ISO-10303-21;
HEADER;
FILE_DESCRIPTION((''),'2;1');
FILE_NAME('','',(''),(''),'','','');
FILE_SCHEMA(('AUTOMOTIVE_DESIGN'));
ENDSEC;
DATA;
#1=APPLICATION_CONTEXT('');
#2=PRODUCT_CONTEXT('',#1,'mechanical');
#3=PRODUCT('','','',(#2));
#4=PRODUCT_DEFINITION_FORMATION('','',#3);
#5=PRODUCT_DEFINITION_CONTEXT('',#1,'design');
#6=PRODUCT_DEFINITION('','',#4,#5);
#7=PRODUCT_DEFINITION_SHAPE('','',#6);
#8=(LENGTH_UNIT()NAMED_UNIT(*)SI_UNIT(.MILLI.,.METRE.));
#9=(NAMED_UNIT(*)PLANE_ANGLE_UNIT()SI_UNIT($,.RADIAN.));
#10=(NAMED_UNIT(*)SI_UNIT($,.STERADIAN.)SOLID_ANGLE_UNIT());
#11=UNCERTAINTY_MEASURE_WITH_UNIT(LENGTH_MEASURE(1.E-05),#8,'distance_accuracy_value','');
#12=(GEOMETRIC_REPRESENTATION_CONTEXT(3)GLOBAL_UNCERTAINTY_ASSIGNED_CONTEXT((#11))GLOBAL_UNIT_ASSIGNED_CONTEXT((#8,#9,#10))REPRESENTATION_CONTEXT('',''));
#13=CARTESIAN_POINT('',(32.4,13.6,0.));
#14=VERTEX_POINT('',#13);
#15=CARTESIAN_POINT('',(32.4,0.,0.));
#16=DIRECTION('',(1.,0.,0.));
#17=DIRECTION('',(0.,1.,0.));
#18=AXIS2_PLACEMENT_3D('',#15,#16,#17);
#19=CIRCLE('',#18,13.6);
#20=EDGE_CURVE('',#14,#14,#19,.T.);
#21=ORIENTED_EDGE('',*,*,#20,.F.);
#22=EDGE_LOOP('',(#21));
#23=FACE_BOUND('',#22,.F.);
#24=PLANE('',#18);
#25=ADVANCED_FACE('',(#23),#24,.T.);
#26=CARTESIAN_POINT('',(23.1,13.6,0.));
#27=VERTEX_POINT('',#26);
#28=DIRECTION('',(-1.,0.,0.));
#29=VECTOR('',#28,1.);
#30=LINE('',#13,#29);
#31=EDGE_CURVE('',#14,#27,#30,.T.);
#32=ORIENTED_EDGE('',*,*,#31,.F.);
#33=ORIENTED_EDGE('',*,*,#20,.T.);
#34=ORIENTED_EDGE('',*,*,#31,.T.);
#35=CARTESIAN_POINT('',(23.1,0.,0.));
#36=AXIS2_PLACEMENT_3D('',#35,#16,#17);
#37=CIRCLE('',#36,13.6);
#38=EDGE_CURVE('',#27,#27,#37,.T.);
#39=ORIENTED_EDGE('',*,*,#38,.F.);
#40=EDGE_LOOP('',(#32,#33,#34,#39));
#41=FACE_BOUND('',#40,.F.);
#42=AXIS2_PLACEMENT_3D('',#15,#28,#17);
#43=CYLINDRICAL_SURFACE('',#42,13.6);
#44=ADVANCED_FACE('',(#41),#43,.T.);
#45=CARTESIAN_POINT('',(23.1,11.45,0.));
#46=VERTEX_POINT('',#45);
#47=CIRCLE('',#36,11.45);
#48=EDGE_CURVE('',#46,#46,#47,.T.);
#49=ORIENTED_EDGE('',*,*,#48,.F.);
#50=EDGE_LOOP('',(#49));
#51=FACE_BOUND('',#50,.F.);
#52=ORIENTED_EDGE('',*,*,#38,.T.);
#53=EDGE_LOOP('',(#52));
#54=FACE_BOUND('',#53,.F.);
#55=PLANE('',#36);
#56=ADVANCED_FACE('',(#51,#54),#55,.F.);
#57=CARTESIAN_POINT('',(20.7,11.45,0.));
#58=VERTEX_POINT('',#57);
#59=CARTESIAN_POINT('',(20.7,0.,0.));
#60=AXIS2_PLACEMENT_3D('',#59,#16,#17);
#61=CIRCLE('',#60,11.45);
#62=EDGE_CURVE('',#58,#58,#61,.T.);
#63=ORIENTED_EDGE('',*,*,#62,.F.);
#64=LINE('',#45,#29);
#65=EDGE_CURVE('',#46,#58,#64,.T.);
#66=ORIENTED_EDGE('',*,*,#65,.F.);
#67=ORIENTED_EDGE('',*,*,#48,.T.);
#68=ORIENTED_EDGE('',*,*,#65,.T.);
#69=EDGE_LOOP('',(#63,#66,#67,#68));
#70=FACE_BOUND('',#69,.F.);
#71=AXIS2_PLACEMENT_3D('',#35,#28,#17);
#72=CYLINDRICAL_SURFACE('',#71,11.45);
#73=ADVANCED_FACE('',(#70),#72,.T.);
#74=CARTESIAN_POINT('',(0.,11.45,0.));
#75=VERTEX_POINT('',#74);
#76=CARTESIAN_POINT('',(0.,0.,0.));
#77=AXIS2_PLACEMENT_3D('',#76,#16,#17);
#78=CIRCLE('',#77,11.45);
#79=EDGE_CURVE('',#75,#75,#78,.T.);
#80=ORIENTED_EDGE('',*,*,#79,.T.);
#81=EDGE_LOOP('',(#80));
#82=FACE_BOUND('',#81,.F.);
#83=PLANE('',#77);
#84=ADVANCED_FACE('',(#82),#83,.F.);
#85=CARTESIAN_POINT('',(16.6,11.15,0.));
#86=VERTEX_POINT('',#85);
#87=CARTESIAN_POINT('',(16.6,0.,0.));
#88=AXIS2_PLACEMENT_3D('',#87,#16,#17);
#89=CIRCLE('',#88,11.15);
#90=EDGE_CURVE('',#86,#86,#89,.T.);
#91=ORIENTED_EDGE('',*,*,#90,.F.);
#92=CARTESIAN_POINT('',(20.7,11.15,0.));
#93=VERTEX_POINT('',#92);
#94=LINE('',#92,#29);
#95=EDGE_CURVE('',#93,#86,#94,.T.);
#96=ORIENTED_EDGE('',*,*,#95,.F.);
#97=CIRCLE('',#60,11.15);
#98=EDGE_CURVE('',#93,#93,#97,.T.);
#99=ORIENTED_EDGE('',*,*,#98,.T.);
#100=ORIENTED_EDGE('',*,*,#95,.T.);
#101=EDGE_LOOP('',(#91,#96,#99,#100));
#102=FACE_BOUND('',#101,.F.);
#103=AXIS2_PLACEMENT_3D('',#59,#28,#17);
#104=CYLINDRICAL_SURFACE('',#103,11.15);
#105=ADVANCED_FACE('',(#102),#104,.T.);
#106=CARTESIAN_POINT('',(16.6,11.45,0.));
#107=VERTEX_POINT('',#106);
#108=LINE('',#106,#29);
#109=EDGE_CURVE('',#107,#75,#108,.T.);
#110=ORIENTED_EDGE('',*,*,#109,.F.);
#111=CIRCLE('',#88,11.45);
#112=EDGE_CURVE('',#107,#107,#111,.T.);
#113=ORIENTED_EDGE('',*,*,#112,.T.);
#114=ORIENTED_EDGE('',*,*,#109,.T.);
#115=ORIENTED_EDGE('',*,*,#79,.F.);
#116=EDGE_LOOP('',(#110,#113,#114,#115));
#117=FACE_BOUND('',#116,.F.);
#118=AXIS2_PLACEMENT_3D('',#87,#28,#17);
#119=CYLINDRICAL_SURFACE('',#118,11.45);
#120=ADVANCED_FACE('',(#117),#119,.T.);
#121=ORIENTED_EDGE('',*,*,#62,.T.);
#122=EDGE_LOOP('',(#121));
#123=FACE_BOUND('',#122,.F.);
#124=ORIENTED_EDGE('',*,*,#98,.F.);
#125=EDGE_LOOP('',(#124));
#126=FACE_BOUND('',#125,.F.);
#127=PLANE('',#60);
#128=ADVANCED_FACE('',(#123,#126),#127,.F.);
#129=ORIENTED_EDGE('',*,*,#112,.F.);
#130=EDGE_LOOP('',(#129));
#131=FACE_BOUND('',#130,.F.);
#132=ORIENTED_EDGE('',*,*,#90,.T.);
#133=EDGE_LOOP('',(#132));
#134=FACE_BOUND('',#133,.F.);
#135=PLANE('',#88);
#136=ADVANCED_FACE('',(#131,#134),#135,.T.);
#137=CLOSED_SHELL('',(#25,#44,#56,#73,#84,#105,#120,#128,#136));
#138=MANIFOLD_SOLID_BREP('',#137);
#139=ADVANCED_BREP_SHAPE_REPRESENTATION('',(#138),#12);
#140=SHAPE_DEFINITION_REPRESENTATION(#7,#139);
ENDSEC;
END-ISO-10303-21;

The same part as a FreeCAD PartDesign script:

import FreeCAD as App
import Part
import Sketcher
from FreeCAD import Vector


def add_polygon(sketch, points):
    """Adds a closed chain of lines whose ends are joined by coincident constraints."""
    first, n = sketch.GeometryCount, len(points)
    for a, b in zip(points, points[1:] + points[:1]):
        sketch.addGeometry(Part.LineSegment(App.Vector(*a, 0), App.Vector(*b, 0)), False)
    for i in range(n):
        sketch.addConstraint(Sketcher.Constraint("Coincident", first + i, 2, first + (i + 1) % n, 1))

doc = App.newDocument("Part")
body = doc.addObject("PartDesign::Body", "Body")

sketch1 = body.newObject("Sketcher::SketchObject", "Sketch")
sketch1.AttachmentSupport = (doc.getObject("XY_Plane"), [""])
sketch1.MapMode = "FlatFace"
add_polygon(sketch1, [(0, 11.45), (0, 0), (32.4, 0), (32.4, 13.6), (23.1, 13.6), (23.1, 11.45), (20.7, 11.45), (20.7, 11.15), (16.6, 11.15), (16.6, 11.45)])
sketch1.addConstraint([
    Sketcher.Constraint("Vertical", 0),
    Sketcher.Constraint("Horizontal", 1),
    Sketcher.Constraint("Vertical", 2),
    Sketcher.Constraint("Horizontal", 3),
    Sketcher.Constraint("Vertical", 4),
    Sketcher.Constraint("Horizontal", 5),
    Sketcher.Constraint("Vertical", 6),
    Sketcher.Constraint("Horizontal", 7),
    Sketcher.Constraint("Vertical", 8),
    Sketcher.Constraint("Horizontal", 9),
    Sketcher.Constraint("Coincident", 0, 2, -1, 1),
    Sketcher.Constraint("Horizontal", 5, 2, 8, 2),
    Sketcher.Constraint("DistanceX", 1, 1, 1, 2, 32.4),
    Sketcher.Constraint("DistanceX", 3, 2, 3, 1, 9.3),
    Sketcher.Constraint("DistanceX", 5, 2, 5, 1, 2.4),
    Sketcher.Constraint("DistanceX", 7, 2, 7, 1, 4.1),
    Sketcher.Constraint("DistanceY", 2, 1, 2, 2, 13.6),
    Sketcher.Constraint("DistanceY", 0, 2, 0, 1, 11.45),
    Sketcher.Constraint("DistanceY", -1, 1, 6, 2, 11.15),
])
revolution = body.newObject("PartDesign::Revolution", "Revolution")
revolution.Profile = sketch1
revolution.ReferenceAxis = (sketch1, ["H_Axis"])
revolution.Angle = 360

doc.recompute()
